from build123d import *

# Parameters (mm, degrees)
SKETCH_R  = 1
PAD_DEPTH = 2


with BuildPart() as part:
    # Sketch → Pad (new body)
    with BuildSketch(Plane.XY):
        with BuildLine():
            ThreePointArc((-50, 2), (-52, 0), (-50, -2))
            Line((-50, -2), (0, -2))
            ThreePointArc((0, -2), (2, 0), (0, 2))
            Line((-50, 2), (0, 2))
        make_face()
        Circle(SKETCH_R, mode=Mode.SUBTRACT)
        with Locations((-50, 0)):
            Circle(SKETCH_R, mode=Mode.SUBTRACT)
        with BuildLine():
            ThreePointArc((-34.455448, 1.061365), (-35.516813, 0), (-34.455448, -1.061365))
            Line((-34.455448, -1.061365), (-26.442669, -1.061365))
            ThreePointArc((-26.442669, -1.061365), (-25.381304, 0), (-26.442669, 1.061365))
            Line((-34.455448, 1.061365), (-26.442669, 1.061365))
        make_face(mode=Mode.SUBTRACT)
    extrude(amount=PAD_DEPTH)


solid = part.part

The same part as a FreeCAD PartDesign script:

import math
import FreeCAD as App
import Part
import Sketcher
from FreeCAD import Vector

doc = App.newDocument("Part")
body = doc.addObject("PartDesign::Body", "Body")

sketch1 = body.newObject("Sketcher::SketchObject", "Sketch")
sketch1.AttachmentSupport = (doc.getObject("XY_Plane"), [""])
sketch1.MapMode = "FlatFace"
sketch1.addGeometry(Part.ArcOfCircle(Part.Circle(Vector(-50, 0, 0), Vector(0, 0, 1), 2), math.radians(90), math.radians(270)), False)
sketch1.addGeometry(Part.LineSegment(Vector(-50, -2, 0), Vector(0, -2, 0)), False)
sketch1.addGeometry(Part.ArcOfCircle(Part.Circle(Vector(0, 0, 0), Vector(0, 0, 1), 2), math.radians(-90), math.radians(90)), False)
sketch1.addGeometry(Part.LineSegment(Vector(0, 2, 0), Vector(-50, 2, 0)), False)
sketch1.addGeometry(Part.Circle(Vector(-50, 0, 0), Vector(0, 0, 1), 1), False)
sketch1.addGeometry(Part.ArcOfCircle(Part.Circle(Vector(-34.5, 0, 0), Vector(0, 0, 1), 1.1), math.radians(90), math.radians(270)), False)
sketch1.addGeometry(Part.LineSegment(Vector(-34.5, 1.1, 0), Vector(-26.4, 1.1, 0)), False)
sketch1.addGeometry(Part.ArcOfCircle(Part.Circle(Vector(-26.4, 0, 0), Vector(0, 0, 1), 1.1), math.radians(-90), math.radians(90)), False)
sketch1.addGeometry(Part.LineSegment(Vector(-26.4, -1.1, 0), Vector(-34.5, -1.1, 0)), False)
sketch1.addGeometry(Part.Circle(Vector(0, 0, 0), Vector(0, 0, 1), 1), False)
sketch1.addConstraint(Sketcher.Constraint("Tangent", 0, 2, 1, 1))
sketch1.addConstraint(Sketcher.Constraint("Tangent", 1, 2, 2, 1))
sketch1.addConstraint(Sketcher.Constraint("Tangent", 2, 2, 3, 1))
sketch1.addConstraint(Sketcher.Constraint("Tangent", 3, 2, 0, 1))
sketch1.addConstraint(Sketcher.Constraint("Tangent", 5, 1, 6, 1))
sketch1.addConstraint(Sketcher.Constraint("Tangent", 6, 2, 7, 2))
sketch1.addConstraint(Sketcher.Constraint("Tangent", 7, 1, 8, 1))
sketch1.addConstraint(Sketcher.Constraint("Tangent", 8, 2, 5, 2))
sketch1.addConstraint(Sketcher.Constraint("Horizontal", 1))
sketch1.addConstraint(Sketcher.Constraint("Horizontal", 3))
sketch1.addConstraint(Sketcher.Constraint("Horizontal", 6))
sketch1.addConstraint(Sketcher.Constraint("Horizontal", 8))
sketch1.addConstraint(Sketcher.Constraint("Coincident", 2, 3, -1, 1))
sketch1.addConstraint(Sketcher.Constraint("Coincident", 9, 3, -1, 1))
sketch1.addConstraint(Sketcher.Constraint("Coincident", 4, 3, 0, 3))
sketch1.addConstraint(Sketcher.Constraint("Equal", 4, 9))
sketch1.addConstraint(Sketcher.Constraint("PointOnObject", 5, 3, -1))
sketch1.addConstraint(Sketcher.Constraint("Diameter", 4, 2.0))
sketch1.addConstraint(Sketcher.Constraint("Radius", 0, 2.0))
sketch1.addConstraint(Sketcher.Constraint("DistanceX", 1, 1, 1, 2, 50.0))
sketch1.addConstraint(Sketcher.Constraint("Radius", 5, 1.061365))
sketch1.addConstraint(Sketcher.Constraint("DistanceX", 6, 1, 6, 2, 8.012779))
sketch1.addConstraint(Sketcher.Constraint("DistanceX", 7, 3, -1, 1, 26.442669))
pad1 = body.newObject("PartDesign::Pad", "Pad")
pad1.Profile = sketch1
pad1.Length = 2

doc.recompute()
